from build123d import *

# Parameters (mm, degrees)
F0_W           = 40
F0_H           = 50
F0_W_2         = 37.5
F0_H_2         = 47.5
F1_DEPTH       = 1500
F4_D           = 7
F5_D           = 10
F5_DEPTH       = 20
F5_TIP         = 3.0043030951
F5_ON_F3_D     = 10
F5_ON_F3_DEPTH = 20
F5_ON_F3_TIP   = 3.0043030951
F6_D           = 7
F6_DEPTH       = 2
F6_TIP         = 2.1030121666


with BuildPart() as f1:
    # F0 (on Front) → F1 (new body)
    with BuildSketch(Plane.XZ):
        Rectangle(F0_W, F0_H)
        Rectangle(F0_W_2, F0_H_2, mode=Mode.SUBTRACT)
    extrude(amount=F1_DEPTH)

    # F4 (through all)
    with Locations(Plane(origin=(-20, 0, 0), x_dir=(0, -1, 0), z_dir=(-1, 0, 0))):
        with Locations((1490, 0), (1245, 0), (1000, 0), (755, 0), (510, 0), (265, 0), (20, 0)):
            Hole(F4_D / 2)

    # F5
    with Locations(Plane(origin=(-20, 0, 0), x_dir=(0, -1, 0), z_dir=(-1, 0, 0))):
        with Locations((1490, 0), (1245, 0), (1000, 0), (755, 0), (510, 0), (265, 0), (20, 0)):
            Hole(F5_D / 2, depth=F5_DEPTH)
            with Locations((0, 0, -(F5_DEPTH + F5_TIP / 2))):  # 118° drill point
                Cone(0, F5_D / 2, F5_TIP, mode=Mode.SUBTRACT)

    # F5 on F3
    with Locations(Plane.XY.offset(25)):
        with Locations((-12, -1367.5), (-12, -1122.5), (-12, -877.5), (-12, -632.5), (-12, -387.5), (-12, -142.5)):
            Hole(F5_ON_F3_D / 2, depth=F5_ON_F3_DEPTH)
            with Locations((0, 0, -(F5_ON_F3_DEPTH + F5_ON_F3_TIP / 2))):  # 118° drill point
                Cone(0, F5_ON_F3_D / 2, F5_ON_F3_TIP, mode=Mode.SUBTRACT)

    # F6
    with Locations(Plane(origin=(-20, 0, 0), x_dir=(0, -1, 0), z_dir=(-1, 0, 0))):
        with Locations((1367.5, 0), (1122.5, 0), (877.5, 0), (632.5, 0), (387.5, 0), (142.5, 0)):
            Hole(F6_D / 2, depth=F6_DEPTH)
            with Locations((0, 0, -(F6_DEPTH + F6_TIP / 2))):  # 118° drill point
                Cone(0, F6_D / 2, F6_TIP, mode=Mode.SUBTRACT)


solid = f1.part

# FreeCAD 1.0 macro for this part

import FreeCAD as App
import Part
import Sketcher
from FreeCAD import Vector


def add_polygon(sketch, points):
    """Adds a closed chain of lines whose ends are joined by coincident constraints."""
    first, n = sketch.GeometryCount, len(points)
    for a, b in zip(points, points[1:] + points[:1]):
        sketch.addGeometry(Part.LineSegment(App.Vector(*a, 0), App.Vector(*b, 0)), False)
    for i in range(n):
        sketch.addConstraint(Sketcher.Constraint("Coincident", first + i, 2, first + (i + 1) % n, 1))

doc = App.newDocument("Part")
body = doc.addObject("PartDesign::Body", "Body")

# Sketch on XZ plane
sketch1 = body.newObject("Sketcher::SketchObject", "Sketch")
sketch1.AttachmentSupport = (doc.getObject("XZ_Plane"), [""])
sketch1.MapMode = "FlatFace"
add_polygon(sketch1, [(-20, 25), (-20, -25), (20, -25), (20, 25)])  # lines 0-3
add_polygon(sketch1, [(19, -24), (-19, -24), (-19, 24), (19, 24)])  # lines 4-7
sketch1.addConstraint([
    Sketcher.Constraint("Vertical", 0),
    Sketcher.Constraint("Horizontal", 1),
    Sketcher.Constraint("Vertical", 2),
    Sketcher.Constraint("Horizontal", 3),
    Sketcher.Constraint("Horizontal", 4),
    Sketcher.Constraint("Vertical", 5),
    Sketcher.Constraint("Horizontal", 6),
    Sketcher.Constraint("Vertical", 7),
    Sketcher.Constraint("Symmetric", 0, 2, 2, 2, -1, 1),
    Sketcher.Constraint("Symmetric", 4, 2, 6, 2, -1, 1),
    Sketcher.Constraint("DistanceX", 1, 1, 1, 2, 40.0),
    Sketcher.Constraint("DistanceY", 0, 2, 0, 1, 50.0),
    Sketcher.Constraint("DistanceX", 4, 2, 4, 1, 37.5),
    Sketcher.Constraint("DistanceY", 5, 1, 5, 2, 47.5),
])
pad1 = body.newObject("PartDesign::Pad", "Pad")
pad1.Profile = sketch1
pad1.Length = 1500

# Sketch on YZ plane
sketch2 = body.newObject("Sketcher::SketchObject", "Sketch001")
sketch2.AttachmentSupport = (doc.getObject("YZ_Plane"), [""])
sketch2.MapMode = "FlatFace"
sketch2.AttachmentOffset = App.Placement(Vector(0, 0, -20), App.Rotation())
sketch2.addGeometry([
    Part.Circle(Vector(-1490, 0, 0), Vector(0, 0, 1), 3.5),  # 0
    Part.Circle(Vector(-1245, 0, 0), Vector(0, 0, 1), 3.5),  # 1
    Part.Circle(Vector(-1000, 0, 0), Vector(0, 0, 1), 3.5),  # 2
    Part.Circle(Vector(-755, 0, 0), Vector(0, 0, 1), 3.5),  # 3
    Part.Circle(Vector(-510, 0, 0), Vector(0, 0, 1), 3.5),  # 4
    Part.Circle(Vector(-265, 0, 0), Vector(0, 0, 1), 3.5),  # 5
    Part.Circle(Vector(-20, 0, 0), Vector(0, 0, 1), 3.5),  # 6
], False)
sketch2.addConstraint([
    Sketcher.Constraint("Equal", 0, 1),
    Sketcher.Constraint("Equal", 1, 2),
    Sketcher.Constraint("Equal", 2, 3),
    Sketcher.Constraint("Equal", 3, 4),
    Sketcher.Constraint("Equal", 4, 5),
    Sketcher.Constraint("Equal", 5, 6),
    Sketcher.Constraint("PointOnObject", 0, 3, -1),
    Sketcher.Constraint("PointOnObject", 1, 3, -1),
    Sketcher.Constraint("PointOnObject", 2, 3, -1),
    Sketcher.Constraint("PointOnObject", 3, 3, -1),
    Sketcher.Constraint("PointOnObject", 4, 3, -1),
    Sketcher.Constraint("PointOnObject", 5, 3, -1),
    Sketcher.Constraint("PointOnObject", 6, 3, -1),
    Sketcher.Constraint("Diameter", 0, 7.0),
    Sketcher.Constraint("DistanceX", 0, 3, -1, 1, 1490.0),
    Sketcher.Constraint("DistanceX", 1, 3, -1, 1, 1245.0),
    Sketcher.Constraint("DistanceX", 2, 3, -1, 1, 1000.0),
    Sketcher.Constraint("DistanceX", 3, 3, -1, 1, 755.0),
    Sketcher.Constraint("DistanceX", 4, 3, -1, 1, 510.0),
    Sketcher.Constraint("DistanceX", 5, 3, -1, 1, 265.0),
    Sketcher.Constraint("DistanceX", 6, 3, -1, 1, 20.0),
])
doc.recompute()
hole = body.newObject("PartDesign::Hole", "Hole")
hole.Profile = sketch2
hole.ThreadType = "None"
hole.Diameter = 7
hole.DepthType = "ThroughAll"
hole.Reversed = True

# Sketch on YZ plane
sketch3 = body.newObject("Sketcher::SketchObject", "Sketch002")
sketch3.AttachmentSupport = (doc.getObject("YZ_Plane"), [""])
sketch3.MapMode = "FlatFace"
sketch3.AttachmentOffset = App.Placement(Vector(0, 0, -20), App.Rotation())
sketch3.addGeometry([
    Part.Circle(Vector(-1490, 0, 0), Vector(0, 0, 1), 5),  # 0
    Part.Circle(Vector(-1245, 0, 0), Vector(0, 0, 1), 5),  # 1
    Part.Circle(Vector(-1000, 0, 0), Vector(0, 0, 1), 5),  # 2
    Part.Circle(Vector(-755, 0, 0), Vector(0, 0, 1), 5),  # 3
    Part.Circle(Vector(-510, 0, 0), Vector(0, 0, 1), 5),  # 4
    Part.Circle(Vector(-265, 0, 0), Vector(0, 0, 1), 5),  # 5
    Part.Circle(Vector(-20, 0, 0), Vector(0, 0, 1), 5),  # 6
], False)
sketch3.addConstraint([
    Sketcher.Constraint("Equal", 0, 1),
    Sketcher.Constraint("Equal", 1, 2),
    Sketcher.Constraint("Equal", 2, 3),
    Sketcher.Constraint("Equal", 3, 4),
    Sketcher.Constraint("Equal", 4, 5),
    Sketcher.Constraint("Equal", 5, 6),
    Sketcher.Constraint("PointOnObject", 0, 3, -1),
    Sketcher.Constraint("PointOnObject", 1, 3, -1),
    Sketcher.Constraint("PointOnObject", 2, 3, -1),
    Sketcher.Constraint("PointOnObject", 3, 3, -1),
    Sketcher.Constraint("PointOnObject", 4, 3, -1),
    Sketcher.Constraint("PointOnObject", 5, 3, -1),
    Sketcher.Constraint("PointOnObject", 6, 3, -1),
    Sketcher.Constraint("Diameter", 0, 10.0),
    Sketcher.Constraint("DistanceX", 0, 3, -1, 1, 1490.0),
    Sketcher.Constraint("DistanceX", 1, 3, -1, 1, 1245.0),
    Sketcher.Constraint("DistanceX", 2, 3, -1, 1, 1000.0),
    Sketcher.Constraint("DistanceX", 3, 3, -1, 1, 755.0),
    Sketcher.Constraint("DistanceX", 4, 3, -1, 1, 510.0),
    Sketcher.Constraint("DistanceX", 5, 3, -1, 1, 265.0),
    Sketcher.Constraint("DistanceX", 6, 3, -1, 1, 20.0),
])
doc.recompute()
hole2 = body.newObject("PartDesign::Hole", "Hole001")
hole2.Profile = sketch3
hole2.ThreadType = "None"
hole2.Diameter = 10
hole2.DepthType = "Dimension"
hole2.Depth = 20
hole2.DrillPoint = "Angled"
hole2.DrillPointAngle = 118
hole2.Reversed = True

# Sketch on XY plane
sketch4 = body.newObject("Sketcher::SketchObject", "Sketch003")
sketch4.AttachmentSupport = (doc.getObject("XY_Plane"), [""])
sketch4.MapMode = "FlatFace"
sketch4.AttachmentOffset = App.Placement(Vector(0, 0, 25), App.Rotation())
sketch4.addGeometry([
    Part.Circle(Vector(-12, -1368, 0), Vector(0, 0, 1), 5),  # 0
    Part.Circle(Vector(-12, -1122, 0), Vector(0, 0, 1), 5),  # 1
    Part.Circle(Vector(-12, -878, 0), Vector(0, 0, 1), 5),  # 2
    Part.Circle(Vector(-12, -632, 0), Vector(0, 0, 1), 5),  # 3
    Part.Circle(Vector(-12, -388, 0), Vector(0, 0, 1), 5),  # 4
    Part.Circle(Vector(-12, -142, 0), Vector(0, 0, 1), 5),  # 5
], False)
sketch4.addConstraint([
    Sketcher.Constraint("Equal", 0, 1),
    Sketcher.Constraint("Equal", 1, 2),
    Sketcher.Constraint("Equal", 2, 3),
    Sketcher.Constraint("Equal", 3, 4),
    Sketcher.Constraint("Equal", 4, 5),
    Sketcher.Constraint("Vertical", 0, 3, 1, 3),
    Sketcher.Constraint("Vertical", 1, 3, 2, 3),
    Sketcher.Constraint("Vertical", 2, 3, 3, 3),
    Sketcher.Constraint("Vertical", 3, 3, 4, 3),
    Sketcher.Constraint("Vertical", 4, 3, 5, 3),
    Sketcher.Constraint("Diameter", 0, 10.0),
    Sketcher.Constraint("DistanceX", 0, 3, -1, 1, 12.0),
    Sketcher.Constraint("DistanceY", 0, 3, 1, 3, 245.0),
    Sketcher.Constraint("DistanceY", 1, 3, 2, 3, 245.0),
    Sketcher.Constraint("DistanceY", 2, 3, 3, 3, 245.0),
    Sketcher.Constraint("DistanceY", 3, 3, 4, 3, 245.0),
    Sketcher.Constraint("DistanceY", 4, 3, 5, 3, 245.0),
    Sketcher.Constraint("DistanceY", 0, 3, -1, 1, 1367.5),
])
doc.recompute()
hole3 = body.newObject("PartDesign::Hole", "Hole002")
hole3.Profile = sketch4
hole3.ThreadType = "None"
hole3.Diameter = 10
hole3.DepthType = "Dimension"
hole3.Depth = 20
hole3.DrillPoint = "Angled"
hole3.DrillPointAngle = 118

# Sketch on YZ plane
sketch5 = body.newObject("Sketcher::SketchObject", "Sketch004")
sketch5.AttachmentSupport = (doc.getObject("YZ_Plane"), [""])
sketch5.MapMode = "FlatFace"
sketch5.AttachmentOffset = App.Placement(Vector(0, 0, -20), App.Rotation())
sketch5.addGeometry([
    Part.Circle(Vector(-1367.5, 0, 0), Vector(0, 0, 1), 3.5),  # 0
    Part.Circle(Vector(-1122.5, 0, 0), Vector(0, 0, 1), 3.5),  # 1
    Part.Circle(Vector(-877.5, 0, 0), Vector(0, 0, 1), 3.5),  # 2
    Part.Circle(Vector(-632.5, 0, 0), Vector(0, 0, 1), 3.5),  # 3
    Part.Circle(Vector(-387.5, 0, 0), Vector(0, 0, 1), 3.5),  # 4
    Part.Circle(Vector(-142.5, 0, 0), Vector(0, 0, 1), 3.5),  # 5
], False)
sketch5.addConstraint([
    Sketcher.Constraint("Equal", 0, 1),
    Sketcher.Constraint("Equal", 1, 2),
    Sketcher.Constraint("Equal", 2, 3),
    Sketcher.Constraint("Equal", 3, 4),
    Sketcher.Constraint("Equal", 4, 5),
    Sketcher.Constraint("PointOnObject", 0, 3, -1),
    Sketcher.Constraint("PointOnObject", 1, 3, -1),
    Sketcher.Constraint("PointOnObject", 2, 3, -1),
    Sketcher.Constraint("PointOnObject", 3, 3, -1),
    Sketcher.Constraint("PointOnObject", 4, 3, -1),
    Sketcher.Constraint("PointOnObject", 5, 3, -1),
    Sketcher.Constraint("Diameter", 0, 7.0),
    Sketcher.Constraint("DistanceX", 0, 3, 1, 3, 245.0),
    Sketcher.Constraint("DistanceX", 1, 3, 2, 3, 245.0),
    Sketcher.Constraint("DistanceX", 2, 3, 3, 3, 245.0),
    Sketcher.Constraint("DistanceX", 3, 3, 4, 3, 245.0),
    Sketcher.Constraint("DistanceX", 4, 3, 5, 3, 245.0),
    Sketcher.Constraint("DistanceX", 0, 3, -1, 1, 1367.5),
])
doc.recompute()
hole4 = body.newObject("PartDesign::Hole", "Hole003")
hole4.Profile = sketch5
hole4.ThreadType = "None"
hole4.Diameter = 7
hole4.DepthType = "Dimension"
hole4.Depth = 2
hole4.DrillPoint = "Angled"
hole4.DrillPointAngle = 118
hole4.Reversed = True

doc.recompute()
